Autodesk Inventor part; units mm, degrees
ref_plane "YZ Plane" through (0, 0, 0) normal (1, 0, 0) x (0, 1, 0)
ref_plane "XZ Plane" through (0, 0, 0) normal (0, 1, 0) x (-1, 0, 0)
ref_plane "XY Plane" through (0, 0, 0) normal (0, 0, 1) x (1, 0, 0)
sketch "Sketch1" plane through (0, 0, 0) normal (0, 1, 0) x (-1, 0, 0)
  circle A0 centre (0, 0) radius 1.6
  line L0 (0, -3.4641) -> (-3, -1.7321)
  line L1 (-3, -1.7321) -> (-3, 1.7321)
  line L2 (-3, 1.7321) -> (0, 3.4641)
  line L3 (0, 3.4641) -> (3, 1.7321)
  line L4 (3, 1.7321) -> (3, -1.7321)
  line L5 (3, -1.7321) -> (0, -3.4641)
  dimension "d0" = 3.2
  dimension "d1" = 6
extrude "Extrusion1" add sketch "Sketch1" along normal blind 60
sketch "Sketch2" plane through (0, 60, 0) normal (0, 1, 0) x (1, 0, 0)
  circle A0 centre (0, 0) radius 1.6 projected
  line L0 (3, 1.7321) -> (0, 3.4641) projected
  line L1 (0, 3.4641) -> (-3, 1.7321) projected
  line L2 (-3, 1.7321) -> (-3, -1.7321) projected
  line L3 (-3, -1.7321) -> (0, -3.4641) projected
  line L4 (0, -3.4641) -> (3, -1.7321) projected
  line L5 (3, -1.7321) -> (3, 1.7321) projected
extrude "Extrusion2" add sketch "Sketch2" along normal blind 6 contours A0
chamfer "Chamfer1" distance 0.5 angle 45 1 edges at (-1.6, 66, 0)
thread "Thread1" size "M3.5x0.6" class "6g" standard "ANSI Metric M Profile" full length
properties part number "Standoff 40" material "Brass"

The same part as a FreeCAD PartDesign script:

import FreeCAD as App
import Part
import Sketcher
Q = App.Units.Quantity


def edges_at(feature, points):
    """Names of the edges that pass closest to the given points."""
    edges = feature.Shape.Edges
    near = lambda p: min(range(len(edges)), key=lambda i: edges[i].distToShape(Part.Vertex(*p))[0])
    return sorted({f"Edge{near(p) + 1}" for p in points})


def add_polygon(sketch, points):
    """Adds a closed chain of lines whose ends are joined by coincident constraints."""
    first, n = sketch.GeometryCount, len(points)
    for a, b in zip(points, points[1:] + points[:1]):
        sketch.addGeometry(Part.LineSegment(App.Vector(*a, 0), App.Vector(*b, 0)), False)
    for i in range(n):
        sketch.addConstraint(Sketcher.Constraint("Coincident", first + i, 2, first + (i + 1) % n, 1))

doc = App.newDocument("Part")
body = doc.addObject("PartDesign::Body", "Body")
body.AllowCompound = True

# Sketch on XZ plane
sketch1 = body.newObject("Sketcher::SketchObject", "Sketch")
sketch1.AttachmentSupport = (doc.getObject("XZ_Plane"), [""])
sketch1.MapMode = "FlatFace"
add_polygon(sketch1, [(3, -1.7), (0, -3.5), (-3, -1.7), (-3, 1.7), (0, 3.5), (3, 1.7)])  # lines 0-5
sketch1.addGeometry(Part.Circle(App.Vector(0, 0, 0), App.Vector(0, 0, 1), 1.6), False)  # 6
sketch1.addConstraint([
    Sketcher.Constraint("Vertical", 2),
    Sketcher.Constraint("Vertical", 5),
    Sketcher.Constraint("Coincident", 6, 3, -1, 1),
    Sketcher.Constraint("Symmetric", 0, 2, 3, 2, -1, 1),
    Sketcher.Constraint("Symmetric", 1, 2, 4, 2, -1, 1),
    Sketcher.Constraint("PointOnObject", 0, 2, -2),
    Sketcher.Constraint("Parallel", 0, 3),
    Sketcher.Constraint("Horizontal", 2, 2, 4, 2),
    Sketcher.Constraint("Diameter", 6, 3.2),
    Sketcher.Constraint("DistanceX", 2, 2, 4, 2, 6.0),
    Sketcher.Constraint("Angle", 0, Q("-150.0007 deg")),
    Sketcher.Constraint("DistanceY", 2, 1, 2, 2, 3.4642),
])
pad1 = body.newObject("PartDesign::Pad", "Pad")
pad1.Profile = sketch1
pad1.Length = 60
pad1.Reversed = True

# Sketch on XZ plane
sketch2 = body.newObject("Sketcher::SketchObject", "Sketch001")
sketch2.AttachmentSupport = (doc.getObject("XZ_Plane"), [""])
sketch2.MapMode = "FlatFace"
sketch2.AttachmentOffset = App.Placement(App.Vector(0, 0, -60), App.Rotation())
sketch2.addGeometry(Part.Circle(App.Vector(0, 0, 0), App.Vector(0, 0, 1), 1.6), False)
sketch2.addConstraint([
    Sketcher.Constraint("Coincident", 0, 3, -1, 1),
    Sketcher.Constraint("Diameter", 0, 3.2),
])
pad2 = body.newObject("PartDesign::Pad", "Pad001")
pad2.Profile = sketch2
pad2.Length = 6
pad2.Reversed = True
doc.recompute()

chamfer = body.newObject("PartDesign::Chamfer", "Chamfer")
chamfer.Base = (pad2, edges_at(pad2, [(-1.6, 66, 0)]))
chamfer.Size = 0.5

doc.recompute()
